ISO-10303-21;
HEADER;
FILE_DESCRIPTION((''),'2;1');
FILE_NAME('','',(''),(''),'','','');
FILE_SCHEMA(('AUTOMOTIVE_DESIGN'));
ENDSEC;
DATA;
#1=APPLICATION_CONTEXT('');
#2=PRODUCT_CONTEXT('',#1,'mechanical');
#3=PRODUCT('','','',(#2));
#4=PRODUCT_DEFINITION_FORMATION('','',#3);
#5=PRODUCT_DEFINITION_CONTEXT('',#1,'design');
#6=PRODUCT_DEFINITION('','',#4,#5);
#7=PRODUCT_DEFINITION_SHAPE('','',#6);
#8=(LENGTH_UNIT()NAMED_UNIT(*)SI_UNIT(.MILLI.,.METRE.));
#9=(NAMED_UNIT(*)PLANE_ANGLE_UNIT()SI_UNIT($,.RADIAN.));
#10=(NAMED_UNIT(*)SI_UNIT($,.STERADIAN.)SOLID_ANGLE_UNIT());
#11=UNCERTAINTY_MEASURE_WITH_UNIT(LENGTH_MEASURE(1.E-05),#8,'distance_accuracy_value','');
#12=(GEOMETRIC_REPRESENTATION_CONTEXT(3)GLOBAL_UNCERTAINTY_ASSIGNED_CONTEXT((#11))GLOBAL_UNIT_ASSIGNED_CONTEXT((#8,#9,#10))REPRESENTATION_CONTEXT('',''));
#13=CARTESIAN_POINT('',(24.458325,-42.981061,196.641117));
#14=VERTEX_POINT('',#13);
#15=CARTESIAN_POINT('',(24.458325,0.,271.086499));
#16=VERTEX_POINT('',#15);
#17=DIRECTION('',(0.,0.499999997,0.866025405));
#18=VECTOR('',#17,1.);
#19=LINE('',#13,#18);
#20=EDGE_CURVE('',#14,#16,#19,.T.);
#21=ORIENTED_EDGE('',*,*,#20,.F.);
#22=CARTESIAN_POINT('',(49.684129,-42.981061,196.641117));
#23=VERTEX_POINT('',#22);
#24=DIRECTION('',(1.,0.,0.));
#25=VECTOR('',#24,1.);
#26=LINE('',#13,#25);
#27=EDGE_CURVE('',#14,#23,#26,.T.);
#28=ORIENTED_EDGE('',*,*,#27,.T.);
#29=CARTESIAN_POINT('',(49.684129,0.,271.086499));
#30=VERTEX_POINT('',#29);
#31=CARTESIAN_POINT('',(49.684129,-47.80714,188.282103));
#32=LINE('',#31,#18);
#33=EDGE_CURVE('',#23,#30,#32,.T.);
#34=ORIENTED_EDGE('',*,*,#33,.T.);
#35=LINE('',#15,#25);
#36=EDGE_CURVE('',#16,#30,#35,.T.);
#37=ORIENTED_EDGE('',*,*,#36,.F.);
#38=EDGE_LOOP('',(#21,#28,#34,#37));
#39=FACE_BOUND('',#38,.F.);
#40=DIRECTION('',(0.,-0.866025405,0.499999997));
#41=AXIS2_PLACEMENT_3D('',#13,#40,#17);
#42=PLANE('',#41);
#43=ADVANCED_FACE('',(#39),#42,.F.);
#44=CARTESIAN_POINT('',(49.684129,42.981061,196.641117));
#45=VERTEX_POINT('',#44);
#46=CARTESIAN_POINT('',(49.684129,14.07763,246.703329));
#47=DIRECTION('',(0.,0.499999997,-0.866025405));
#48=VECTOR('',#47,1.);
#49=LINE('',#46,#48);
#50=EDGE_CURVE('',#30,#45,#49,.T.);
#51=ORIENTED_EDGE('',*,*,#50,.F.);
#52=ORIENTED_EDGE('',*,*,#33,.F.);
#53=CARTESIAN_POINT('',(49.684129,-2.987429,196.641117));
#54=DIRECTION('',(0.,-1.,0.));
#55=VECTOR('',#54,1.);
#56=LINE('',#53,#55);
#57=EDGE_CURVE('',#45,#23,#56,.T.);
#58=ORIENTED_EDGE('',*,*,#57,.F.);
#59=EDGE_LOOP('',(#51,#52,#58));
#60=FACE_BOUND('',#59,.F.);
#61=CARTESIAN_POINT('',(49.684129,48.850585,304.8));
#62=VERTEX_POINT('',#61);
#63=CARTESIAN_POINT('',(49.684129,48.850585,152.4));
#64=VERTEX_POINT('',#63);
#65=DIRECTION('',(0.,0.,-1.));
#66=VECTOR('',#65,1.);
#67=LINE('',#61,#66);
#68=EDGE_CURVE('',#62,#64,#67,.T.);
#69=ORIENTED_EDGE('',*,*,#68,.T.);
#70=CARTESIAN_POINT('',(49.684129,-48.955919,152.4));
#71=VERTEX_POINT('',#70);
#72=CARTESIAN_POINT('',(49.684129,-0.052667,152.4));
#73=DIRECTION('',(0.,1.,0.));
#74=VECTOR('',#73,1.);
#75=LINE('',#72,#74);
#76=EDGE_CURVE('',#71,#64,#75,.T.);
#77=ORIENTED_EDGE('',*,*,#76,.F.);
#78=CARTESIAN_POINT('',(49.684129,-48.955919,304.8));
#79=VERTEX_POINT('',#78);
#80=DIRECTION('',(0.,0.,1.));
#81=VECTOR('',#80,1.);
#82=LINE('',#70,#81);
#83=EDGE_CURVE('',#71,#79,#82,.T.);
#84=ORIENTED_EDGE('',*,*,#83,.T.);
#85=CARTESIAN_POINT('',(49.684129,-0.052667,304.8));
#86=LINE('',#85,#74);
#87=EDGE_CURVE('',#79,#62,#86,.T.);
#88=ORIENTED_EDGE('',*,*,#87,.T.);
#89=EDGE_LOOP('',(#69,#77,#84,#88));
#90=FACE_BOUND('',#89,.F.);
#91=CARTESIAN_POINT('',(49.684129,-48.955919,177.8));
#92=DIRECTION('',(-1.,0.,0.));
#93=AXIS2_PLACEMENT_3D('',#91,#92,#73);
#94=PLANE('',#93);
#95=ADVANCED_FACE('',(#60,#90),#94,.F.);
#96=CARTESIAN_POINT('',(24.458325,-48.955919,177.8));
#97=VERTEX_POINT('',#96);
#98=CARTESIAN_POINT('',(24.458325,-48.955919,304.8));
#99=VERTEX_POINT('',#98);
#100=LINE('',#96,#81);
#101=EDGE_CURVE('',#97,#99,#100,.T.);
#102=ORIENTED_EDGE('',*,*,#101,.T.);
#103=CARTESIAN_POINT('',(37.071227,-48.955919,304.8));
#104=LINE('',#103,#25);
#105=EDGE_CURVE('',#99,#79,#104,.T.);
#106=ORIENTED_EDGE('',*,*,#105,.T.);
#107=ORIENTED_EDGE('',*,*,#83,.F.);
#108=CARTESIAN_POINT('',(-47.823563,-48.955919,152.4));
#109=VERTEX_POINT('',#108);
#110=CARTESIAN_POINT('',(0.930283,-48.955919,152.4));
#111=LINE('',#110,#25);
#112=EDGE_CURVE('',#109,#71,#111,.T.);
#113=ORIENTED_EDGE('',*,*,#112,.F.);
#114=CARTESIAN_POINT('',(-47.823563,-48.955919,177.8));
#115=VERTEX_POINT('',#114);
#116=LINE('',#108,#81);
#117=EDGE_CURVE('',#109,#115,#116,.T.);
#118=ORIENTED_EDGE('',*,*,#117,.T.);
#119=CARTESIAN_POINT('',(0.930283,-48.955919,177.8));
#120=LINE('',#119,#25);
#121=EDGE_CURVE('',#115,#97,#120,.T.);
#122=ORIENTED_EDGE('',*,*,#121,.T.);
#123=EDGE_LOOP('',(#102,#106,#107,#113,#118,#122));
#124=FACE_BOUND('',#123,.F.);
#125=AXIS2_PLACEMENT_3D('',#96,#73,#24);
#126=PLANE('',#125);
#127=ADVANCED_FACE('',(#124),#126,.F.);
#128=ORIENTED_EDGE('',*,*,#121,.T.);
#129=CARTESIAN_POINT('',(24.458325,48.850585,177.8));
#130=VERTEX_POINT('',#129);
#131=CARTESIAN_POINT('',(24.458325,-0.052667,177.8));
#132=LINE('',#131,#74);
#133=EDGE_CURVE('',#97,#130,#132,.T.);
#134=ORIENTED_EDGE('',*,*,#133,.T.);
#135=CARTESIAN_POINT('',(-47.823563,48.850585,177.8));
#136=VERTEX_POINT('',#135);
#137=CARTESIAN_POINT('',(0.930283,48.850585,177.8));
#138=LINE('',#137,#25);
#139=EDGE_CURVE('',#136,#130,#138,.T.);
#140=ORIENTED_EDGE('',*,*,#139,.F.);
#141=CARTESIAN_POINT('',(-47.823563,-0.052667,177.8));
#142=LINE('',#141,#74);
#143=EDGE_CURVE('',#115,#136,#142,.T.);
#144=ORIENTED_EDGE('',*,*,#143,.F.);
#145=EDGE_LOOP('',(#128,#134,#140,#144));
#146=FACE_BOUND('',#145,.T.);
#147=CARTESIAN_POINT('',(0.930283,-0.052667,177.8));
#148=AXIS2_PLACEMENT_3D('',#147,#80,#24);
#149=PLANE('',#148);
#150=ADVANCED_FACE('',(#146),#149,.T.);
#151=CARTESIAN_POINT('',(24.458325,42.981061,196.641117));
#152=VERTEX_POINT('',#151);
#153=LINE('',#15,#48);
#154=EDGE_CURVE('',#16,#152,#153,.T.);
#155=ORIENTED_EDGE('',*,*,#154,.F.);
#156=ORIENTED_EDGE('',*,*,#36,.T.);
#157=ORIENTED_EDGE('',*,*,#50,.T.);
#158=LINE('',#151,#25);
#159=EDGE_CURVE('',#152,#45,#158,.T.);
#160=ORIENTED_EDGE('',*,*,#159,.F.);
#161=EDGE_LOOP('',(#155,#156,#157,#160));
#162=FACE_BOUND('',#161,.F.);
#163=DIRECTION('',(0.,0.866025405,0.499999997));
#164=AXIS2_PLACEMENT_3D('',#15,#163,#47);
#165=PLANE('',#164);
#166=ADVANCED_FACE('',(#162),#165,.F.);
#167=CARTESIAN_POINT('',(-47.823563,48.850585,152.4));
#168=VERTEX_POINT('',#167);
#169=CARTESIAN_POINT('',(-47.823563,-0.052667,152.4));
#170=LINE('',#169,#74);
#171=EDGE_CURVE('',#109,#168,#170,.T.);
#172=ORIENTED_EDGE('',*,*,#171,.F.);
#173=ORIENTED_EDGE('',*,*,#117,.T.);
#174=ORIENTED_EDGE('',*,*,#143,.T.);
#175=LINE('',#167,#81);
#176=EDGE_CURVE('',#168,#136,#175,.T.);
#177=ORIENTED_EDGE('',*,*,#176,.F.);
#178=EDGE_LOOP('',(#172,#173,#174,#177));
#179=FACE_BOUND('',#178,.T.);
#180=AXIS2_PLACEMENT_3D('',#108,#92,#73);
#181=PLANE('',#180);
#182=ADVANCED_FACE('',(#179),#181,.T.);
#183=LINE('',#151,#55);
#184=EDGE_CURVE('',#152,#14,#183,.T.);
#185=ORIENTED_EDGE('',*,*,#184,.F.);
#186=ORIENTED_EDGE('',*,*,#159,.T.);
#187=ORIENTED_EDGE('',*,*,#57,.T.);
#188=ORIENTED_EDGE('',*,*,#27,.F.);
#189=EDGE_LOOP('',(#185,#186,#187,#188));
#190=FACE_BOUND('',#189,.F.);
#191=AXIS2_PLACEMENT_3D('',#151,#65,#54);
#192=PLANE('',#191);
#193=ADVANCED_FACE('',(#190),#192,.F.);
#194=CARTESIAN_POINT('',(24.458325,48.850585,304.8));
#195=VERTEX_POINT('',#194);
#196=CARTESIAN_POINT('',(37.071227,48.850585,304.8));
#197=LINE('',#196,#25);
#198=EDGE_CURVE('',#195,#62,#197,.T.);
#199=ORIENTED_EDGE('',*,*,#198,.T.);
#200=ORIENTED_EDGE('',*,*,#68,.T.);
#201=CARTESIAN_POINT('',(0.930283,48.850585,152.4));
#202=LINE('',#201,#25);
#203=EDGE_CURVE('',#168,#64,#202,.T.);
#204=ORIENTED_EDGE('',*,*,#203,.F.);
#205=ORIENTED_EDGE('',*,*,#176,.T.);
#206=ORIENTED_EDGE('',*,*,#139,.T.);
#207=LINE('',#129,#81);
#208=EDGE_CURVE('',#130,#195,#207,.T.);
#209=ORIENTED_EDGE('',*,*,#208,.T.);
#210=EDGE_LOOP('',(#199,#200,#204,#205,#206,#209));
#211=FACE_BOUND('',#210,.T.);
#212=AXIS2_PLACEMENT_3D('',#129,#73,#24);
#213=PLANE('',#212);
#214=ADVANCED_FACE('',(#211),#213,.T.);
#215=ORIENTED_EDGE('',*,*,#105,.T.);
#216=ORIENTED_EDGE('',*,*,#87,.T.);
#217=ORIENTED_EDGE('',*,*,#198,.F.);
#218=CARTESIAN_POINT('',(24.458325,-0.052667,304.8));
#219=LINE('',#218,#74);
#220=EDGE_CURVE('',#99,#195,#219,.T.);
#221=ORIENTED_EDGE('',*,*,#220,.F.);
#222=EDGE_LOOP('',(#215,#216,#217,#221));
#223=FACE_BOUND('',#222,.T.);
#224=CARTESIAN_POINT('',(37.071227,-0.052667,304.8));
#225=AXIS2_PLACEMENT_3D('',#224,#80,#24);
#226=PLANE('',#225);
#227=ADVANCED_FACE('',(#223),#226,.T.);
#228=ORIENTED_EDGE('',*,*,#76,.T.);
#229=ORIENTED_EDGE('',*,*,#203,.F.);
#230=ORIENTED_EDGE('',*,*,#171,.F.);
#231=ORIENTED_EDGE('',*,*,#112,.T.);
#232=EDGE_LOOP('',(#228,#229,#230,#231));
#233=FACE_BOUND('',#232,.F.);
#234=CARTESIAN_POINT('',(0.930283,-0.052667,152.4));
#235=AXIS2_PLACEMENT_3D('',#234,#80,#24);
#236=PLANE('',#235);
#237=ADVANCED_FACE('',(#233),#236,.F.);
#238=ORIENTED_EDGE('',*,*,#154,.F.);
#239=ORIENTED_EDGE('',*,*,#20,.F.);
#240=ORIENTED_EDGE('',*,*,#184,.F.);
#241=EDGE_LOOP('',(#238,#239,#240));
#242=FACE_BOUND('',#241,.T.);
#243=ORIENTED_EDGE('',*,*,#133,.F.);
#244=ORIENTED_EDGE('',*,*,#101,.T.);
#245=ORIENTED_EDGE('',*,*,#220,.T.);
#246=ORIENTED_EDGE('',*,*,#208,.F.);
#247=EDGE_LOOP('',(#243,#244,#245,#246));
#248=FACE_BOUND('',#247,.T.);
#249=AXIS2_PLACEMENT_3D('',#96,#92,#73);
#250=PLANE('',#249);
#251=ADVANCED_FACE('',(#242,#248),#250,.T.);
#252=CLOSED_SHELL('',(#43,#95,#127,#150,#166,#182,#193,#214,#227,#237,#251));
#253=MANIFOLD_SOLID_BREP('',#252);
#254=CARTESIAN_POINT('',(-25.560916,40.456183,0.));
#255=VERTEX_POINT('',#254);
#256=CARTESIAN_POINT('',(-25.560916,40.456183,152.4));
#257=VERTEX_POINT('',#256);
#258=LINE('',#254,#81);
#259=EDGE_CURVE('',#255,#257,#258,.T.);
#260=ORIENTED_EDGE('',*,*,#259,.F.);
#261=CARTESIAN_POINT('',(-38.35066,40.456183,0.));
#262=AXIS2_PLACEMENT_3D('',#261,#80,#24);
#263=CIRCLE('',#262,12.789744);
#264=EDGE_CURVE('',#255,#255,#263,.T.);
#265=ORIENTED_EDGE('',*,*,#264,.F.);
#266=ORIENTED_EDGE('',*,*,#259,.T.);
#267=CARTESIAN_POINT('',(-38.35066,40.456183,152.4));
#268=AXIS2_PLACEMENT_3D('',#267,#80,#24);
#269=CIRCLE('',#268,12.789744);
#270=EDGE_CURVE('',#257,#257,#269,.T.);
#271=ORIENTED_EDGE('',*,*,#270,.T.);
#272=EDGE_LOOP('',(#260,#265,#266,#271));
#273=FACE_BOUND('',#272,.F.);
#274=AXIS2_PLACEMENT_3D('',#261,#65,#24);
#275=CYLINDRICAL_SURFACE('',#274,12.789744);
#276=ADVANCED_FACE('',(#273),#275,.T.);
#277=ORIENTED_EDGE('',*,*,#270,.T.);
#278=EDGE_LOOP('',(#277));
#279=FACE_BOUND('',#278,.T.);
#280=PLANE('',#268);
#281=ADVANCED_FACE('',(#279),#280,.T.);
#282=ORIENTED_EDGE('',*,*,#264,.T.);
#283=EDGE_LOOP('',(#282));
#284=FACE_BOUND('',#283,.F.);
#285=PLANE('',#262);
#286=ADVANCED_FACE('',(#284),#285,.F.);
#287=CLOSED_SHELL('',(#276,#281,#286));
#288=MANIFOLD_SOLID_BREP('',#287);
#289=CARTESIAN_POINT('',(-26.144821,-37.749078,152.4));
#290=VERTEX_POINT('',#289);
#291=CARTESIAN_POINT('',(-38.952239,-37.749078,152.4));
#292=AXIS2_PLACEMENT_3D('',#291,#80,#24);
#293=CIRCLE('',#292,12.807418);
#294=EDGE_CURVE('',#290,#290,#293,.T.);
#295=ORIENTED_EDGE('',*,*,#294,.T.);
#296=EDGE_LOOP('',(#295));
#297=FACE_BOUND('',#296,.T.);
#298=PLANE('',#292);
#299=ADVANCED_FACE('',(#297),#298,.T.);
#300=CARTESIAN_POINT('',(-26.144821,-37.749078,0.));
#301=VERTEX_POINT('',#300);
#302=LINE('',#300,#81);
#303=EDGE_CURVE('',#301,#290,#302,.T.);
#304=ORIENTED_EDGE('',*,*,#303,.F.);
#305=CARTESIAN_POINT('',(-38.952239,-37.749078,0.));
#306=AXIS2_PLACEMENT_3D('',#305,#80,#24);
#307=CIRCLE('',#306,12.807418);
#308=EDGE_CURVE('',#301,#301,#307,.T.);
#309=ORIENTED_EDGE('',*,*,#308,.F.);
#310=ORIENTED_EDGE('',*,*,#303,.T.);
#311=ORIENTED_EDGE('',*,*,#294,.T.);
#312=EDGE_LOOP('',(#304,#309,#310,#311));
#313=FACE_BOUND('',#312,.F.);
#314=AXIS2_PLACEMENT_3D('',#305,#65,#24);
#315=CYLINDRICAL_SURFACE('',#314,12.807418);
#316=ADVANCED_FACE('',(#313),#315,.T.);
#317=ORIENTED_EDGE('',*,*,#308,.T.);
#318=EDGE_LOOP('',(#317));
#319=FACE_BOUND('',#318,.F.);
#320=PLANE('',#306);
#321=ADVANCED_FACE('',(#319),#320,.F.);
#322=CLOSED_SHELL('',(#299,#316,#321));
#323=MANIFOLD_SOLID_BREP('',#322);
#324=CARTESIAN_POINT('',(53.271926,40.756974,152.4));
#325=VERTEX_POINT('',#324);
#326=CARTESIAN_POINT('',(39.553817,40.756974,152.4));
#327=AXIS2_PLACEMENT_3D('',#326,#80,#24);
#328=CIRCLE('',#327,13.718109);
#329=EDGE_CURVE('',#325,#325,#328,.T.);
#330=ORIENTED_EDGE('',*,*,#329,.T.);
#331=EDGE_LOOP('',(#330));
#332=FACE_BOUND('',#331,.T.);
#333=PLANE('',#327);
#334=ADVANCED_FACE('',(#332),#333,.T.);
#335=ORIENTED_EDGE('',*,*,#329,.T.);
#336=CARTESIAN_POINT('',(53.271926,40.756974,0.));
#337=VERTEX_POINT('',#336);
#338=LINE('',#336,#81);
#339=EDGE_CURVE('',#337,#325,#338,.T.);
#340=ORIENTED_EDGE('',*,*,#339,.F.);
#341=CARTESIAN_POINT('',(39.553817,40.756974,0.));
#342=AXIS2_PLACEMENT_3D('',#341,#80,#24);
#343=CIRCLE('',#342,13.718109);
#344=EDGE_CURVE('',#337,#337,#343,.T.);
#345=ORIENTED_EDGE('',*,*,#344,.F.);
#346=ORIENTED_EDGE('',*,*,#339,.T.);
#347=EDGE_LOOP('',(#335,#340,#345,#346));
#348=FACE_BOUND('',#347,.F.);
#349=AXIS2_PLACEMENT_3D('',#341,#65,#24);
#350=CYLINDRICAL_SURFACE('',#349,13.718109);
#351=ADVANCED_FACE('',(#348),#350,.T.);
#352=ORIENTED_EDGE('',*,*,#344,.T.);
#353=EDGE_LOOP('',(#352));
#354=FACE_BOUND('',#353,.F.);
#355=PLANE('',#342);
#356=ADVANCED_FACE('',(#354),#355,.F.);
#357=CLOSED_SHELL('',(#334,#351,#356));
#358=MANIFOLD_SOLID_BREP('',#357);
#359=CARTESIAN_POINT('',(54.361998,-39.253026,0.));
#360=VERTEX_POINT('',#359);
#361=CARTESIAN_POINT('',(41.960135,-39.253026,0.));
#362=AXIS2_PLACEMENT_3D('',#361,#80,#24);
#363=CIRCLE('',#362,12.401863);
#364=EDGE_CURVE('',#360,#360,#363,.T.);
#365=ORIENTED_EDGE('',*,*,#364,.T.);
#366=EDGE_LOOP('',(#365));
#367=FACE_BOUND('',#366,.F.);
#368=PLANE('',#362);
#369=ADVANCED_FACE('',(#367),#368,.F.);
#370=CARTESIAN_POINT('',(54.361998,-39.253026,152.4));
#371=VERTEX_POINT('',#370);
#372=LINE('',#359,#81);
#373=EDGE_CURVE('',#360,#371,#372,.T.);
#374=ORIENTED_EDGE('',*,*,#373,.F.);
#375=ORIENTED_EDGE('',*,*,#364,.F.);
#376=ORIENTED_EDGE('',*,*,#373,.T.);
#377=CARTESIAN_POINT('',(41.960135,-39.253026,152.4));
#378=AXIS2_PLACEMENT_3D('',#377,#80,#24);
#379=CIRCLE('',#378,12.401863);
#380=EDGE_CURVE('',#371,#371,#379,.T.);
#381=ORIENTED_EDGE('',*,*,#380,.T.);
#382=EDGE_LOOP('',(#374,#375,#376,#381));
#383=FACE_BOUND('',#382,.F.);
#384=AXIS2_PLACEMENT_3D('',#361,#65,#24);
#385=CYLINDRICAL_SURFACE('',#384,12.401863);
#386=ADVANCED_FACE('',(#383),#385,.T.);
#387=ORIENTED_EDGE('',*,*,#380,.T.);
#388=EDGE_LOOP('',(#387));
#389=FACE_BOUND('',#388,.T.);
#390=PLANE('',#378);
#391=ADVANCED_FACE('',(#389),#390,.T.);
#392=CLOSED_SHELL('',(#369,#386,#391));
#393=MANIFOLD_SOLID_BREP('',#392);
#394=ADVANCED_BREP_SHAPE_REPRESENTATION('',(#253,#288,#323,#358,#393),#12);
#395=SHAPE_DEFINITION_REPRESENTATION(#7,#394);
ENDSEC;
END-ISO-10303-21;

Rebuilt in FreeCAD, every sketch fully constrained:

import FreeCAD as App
import Part
import Sketcher
from FreeCAD import Vector
Q = App.Units.Quantity


def add_polygon(sketch, points):
    """Adds a closed chain of lines whose ends are joined by coincident constraints."""
    first, n = sketch.GeometryCount, len(points)
    for a, b in zip(points, points[1:] + points[:1]):
        sketch.addGeometry(Part.LineSegment(App.Vector(*a, 0), App.Vector(*b, 0)), False)
    for i in range(n):
        sketch.addConstraint(Sketcher.Constraint("Coincident", first + i, 2, first + (i + 1) % n, 1))

doc = App.newDocument("Part")
body = doc.addObject("PartDesign::Body", "Body")
body.AllowCompound = True

sketch1 = body.newObject("Sketcher::SketchObject", "Sketch")
sketch1.AttachmentSupport = (doc.getObject("XY_Plane"), [""])
sketch1.MapMode = "FlatFace"
sketch1.addGeometry([
    Part.Circle(Vector(-38.35066, 40.456183, 0), Vector(0, 0, 1), 12.789744),
    Part.Circle(Vector(39.553817, 40.756974, 0), Vector(0, 0, 1), 13.718109),
    Part.Circle(Vector(-38.952239, -37.749078, 0), Vector(0, 0, 1), 12.807418),
    Part.Circle(Vector(41.960135, -39.253026, 0), Vector(0, 0, 1), 12.401863),
], False)
sketch1.addConstraint([
    Sketcher.Constraint("DistanceY", 3, 3, 1, 3, Q("3.15 in")),
    Sketcher.Constraint("Diameter", 0, Q("25.579488 mm")),
    Sketcher.Constraint("Diameter", 1, Q("27.436218 mm")),
    Sketcher.Constraint("Diameter", 2, Q("25.614836 mm")),
    Sketcher.Constraint("Diameter", 3, Q("24.803726 mm")),
    Sketcher.Constraint("DistanceX", 0, 3, -1, 1, Q("38.35066 mm")),
    Sketcher.Constraint("DistanceX", 2, 3, -1, 1, Q("38.952239 mm")),
    Sketcher.Constraint("DistanceY", 0, 3, 1, 3, Q("0.300791 mm")),
    Sketcher.Constraint("DistanceY", 2, 3, 0, 3, Q("78.205261 mm")),
    Sketcher.Constraint("DistanceY", -1, 1, 0, 3, Q("40.456183 mm")),
    Sketcher.Constraint("DistanceX", -1, 1, 1, 3, Q("39.553817 mm")),
    Sketcher.Constraint("DistanceX", -1, 1, 3, 3, Q("41.960135 mm")),
])
pad1 = body.newObject("PartDesign::Pad", "Pad")
pad1.Profile = sketch1
pad1.Length = Q("6 in")
body2 = doc.addObject("PartDesign::Body", "Body001")

sketch2 = body2.newObject("Sketcher::SketchObject", "Sketch001")
sketch2.AttachmentSupport = (doc.getObject("XY_Plane001"), [""])
sketch2.MapMode = "FlatFace"
sketch2.AttachmentOffset = App.Placement(Vector(0, 0, 6 * 25.4), App.Rotation())
add_polygon(sketch2, [(-47.823563, 48.850585), (-47.823563, -48.955919), (49.684129, -48.955919), (49.684129, 48.850585)])
sketch2.addConstraint([
    Sketcher.Constraint("Vertical", 0),
    Sketcher.Constraint("Horizontal", 1),
    Sketcher.Constraint("Vertical", 2),
    Sketcher.Constraint("Horizontal", 3),
    Sketcher.Constraint("DistanceX", 1, 1, 1, 2, Q("97.507692 mm")),
    Sketcher.Constraint("DistanceY", 0, 2, 0, 1, Q("97.806504 mm")),
    Sketcher.Constraint("DistanceY", 0, 2, -1, 1, Q("48.955919 mm")),
    Sketcher.Constraint("DistanceX", -1, 1, 1, 2, Q("49.684129 mm")),
])
pad2 = body2.newObject("PartDesign::Pad", "Pad001")
pad2.Profile = sketch2
pad2.Length = Q("1 in")

sketch3 = body2.newObject("Sketcher::SketchObject", "Sketch002")
sketch3.AttachmentSupport = (doc.getObject("XY_Plane001"), [""])
sketch3.MapMode = "FlatFace"
sketch3.AttachmentOffset = App.Placement(Vector(0, 0, 7 * 25.4), App.Rotation())
add_polygon(sketch3, [(24.458325, 48.850585), (24.458325, -48.955919), (49.684129, -48.955919), (49.684129, 48.850585)])
sketch3.addConstraint([
    Sketcher.Constraint("Vertical", 0),
    Sketcher.Constraint("Horizontal", 1),
    Sketcher.Constraint("Vertical", 2),
    Sketcher.Constraint("Horizontal", 3),
    Sketcher.Constraint("DistanceX", 1, 1, 1, 2, Q("25.225804 mm")),
    Sketcher.Constraint("DistanceY", 0, 2, 0, 1, Q("97.806504 mm")),
    Sketcher.Constraint("DistanceY", 0, 2, -1, 1, Q("48.955919 mm")),
    Sketcher.Constraint("DistanceX", -1, 1, 1, 2, Q("49.684129 mm")),
])
pad3 = body2.newObject("PartDesign::Pad", "Pad002")
pad3.Profile = sketch3
pad3.Length = Q("5 in")

sketch4 = body2.newObject("Sketcher::SketchObject", "Sketch003")
sketch4.AttachmentSupport = (doc.getObject("YZ_Plane001"), [""])
sketch4.MapMode = "FlatFace"
sketch4.AttachmentOffset = App.Placement(Vector(0, 0, 24.458325), App.Rotation())
add_polygon(sketch4, [(42.981061, 196.641117), (-42.981061, 196.641117), (0, 271.086499)])
sketch4.addConstraint([
    Sketcher.Constraint("Horizontal", 0),
    Sketcher.Constraint("PointOnObject", 1, 2, -2),
    Sketcher.Constraint("Equal", 1, 2),
    Sketcher.Constraint("Angle", 1, Q("60 deg")),
    Sketcher.Constraint("DistanceX", 0, 2, 0, 1, Q("85.962122 mm")),
    Sketcher.Constraint("DistanceY", -1, 1, 1, 2, Q("271.086499 mm")),
])
pocket1 = body2.newObject("PartDesign::Pocket", "Pocket")
pocket1.Profile = sketch4
pocket1.Length = Q("3 in")
pocket1.Reversed = True

doc.recompute()
